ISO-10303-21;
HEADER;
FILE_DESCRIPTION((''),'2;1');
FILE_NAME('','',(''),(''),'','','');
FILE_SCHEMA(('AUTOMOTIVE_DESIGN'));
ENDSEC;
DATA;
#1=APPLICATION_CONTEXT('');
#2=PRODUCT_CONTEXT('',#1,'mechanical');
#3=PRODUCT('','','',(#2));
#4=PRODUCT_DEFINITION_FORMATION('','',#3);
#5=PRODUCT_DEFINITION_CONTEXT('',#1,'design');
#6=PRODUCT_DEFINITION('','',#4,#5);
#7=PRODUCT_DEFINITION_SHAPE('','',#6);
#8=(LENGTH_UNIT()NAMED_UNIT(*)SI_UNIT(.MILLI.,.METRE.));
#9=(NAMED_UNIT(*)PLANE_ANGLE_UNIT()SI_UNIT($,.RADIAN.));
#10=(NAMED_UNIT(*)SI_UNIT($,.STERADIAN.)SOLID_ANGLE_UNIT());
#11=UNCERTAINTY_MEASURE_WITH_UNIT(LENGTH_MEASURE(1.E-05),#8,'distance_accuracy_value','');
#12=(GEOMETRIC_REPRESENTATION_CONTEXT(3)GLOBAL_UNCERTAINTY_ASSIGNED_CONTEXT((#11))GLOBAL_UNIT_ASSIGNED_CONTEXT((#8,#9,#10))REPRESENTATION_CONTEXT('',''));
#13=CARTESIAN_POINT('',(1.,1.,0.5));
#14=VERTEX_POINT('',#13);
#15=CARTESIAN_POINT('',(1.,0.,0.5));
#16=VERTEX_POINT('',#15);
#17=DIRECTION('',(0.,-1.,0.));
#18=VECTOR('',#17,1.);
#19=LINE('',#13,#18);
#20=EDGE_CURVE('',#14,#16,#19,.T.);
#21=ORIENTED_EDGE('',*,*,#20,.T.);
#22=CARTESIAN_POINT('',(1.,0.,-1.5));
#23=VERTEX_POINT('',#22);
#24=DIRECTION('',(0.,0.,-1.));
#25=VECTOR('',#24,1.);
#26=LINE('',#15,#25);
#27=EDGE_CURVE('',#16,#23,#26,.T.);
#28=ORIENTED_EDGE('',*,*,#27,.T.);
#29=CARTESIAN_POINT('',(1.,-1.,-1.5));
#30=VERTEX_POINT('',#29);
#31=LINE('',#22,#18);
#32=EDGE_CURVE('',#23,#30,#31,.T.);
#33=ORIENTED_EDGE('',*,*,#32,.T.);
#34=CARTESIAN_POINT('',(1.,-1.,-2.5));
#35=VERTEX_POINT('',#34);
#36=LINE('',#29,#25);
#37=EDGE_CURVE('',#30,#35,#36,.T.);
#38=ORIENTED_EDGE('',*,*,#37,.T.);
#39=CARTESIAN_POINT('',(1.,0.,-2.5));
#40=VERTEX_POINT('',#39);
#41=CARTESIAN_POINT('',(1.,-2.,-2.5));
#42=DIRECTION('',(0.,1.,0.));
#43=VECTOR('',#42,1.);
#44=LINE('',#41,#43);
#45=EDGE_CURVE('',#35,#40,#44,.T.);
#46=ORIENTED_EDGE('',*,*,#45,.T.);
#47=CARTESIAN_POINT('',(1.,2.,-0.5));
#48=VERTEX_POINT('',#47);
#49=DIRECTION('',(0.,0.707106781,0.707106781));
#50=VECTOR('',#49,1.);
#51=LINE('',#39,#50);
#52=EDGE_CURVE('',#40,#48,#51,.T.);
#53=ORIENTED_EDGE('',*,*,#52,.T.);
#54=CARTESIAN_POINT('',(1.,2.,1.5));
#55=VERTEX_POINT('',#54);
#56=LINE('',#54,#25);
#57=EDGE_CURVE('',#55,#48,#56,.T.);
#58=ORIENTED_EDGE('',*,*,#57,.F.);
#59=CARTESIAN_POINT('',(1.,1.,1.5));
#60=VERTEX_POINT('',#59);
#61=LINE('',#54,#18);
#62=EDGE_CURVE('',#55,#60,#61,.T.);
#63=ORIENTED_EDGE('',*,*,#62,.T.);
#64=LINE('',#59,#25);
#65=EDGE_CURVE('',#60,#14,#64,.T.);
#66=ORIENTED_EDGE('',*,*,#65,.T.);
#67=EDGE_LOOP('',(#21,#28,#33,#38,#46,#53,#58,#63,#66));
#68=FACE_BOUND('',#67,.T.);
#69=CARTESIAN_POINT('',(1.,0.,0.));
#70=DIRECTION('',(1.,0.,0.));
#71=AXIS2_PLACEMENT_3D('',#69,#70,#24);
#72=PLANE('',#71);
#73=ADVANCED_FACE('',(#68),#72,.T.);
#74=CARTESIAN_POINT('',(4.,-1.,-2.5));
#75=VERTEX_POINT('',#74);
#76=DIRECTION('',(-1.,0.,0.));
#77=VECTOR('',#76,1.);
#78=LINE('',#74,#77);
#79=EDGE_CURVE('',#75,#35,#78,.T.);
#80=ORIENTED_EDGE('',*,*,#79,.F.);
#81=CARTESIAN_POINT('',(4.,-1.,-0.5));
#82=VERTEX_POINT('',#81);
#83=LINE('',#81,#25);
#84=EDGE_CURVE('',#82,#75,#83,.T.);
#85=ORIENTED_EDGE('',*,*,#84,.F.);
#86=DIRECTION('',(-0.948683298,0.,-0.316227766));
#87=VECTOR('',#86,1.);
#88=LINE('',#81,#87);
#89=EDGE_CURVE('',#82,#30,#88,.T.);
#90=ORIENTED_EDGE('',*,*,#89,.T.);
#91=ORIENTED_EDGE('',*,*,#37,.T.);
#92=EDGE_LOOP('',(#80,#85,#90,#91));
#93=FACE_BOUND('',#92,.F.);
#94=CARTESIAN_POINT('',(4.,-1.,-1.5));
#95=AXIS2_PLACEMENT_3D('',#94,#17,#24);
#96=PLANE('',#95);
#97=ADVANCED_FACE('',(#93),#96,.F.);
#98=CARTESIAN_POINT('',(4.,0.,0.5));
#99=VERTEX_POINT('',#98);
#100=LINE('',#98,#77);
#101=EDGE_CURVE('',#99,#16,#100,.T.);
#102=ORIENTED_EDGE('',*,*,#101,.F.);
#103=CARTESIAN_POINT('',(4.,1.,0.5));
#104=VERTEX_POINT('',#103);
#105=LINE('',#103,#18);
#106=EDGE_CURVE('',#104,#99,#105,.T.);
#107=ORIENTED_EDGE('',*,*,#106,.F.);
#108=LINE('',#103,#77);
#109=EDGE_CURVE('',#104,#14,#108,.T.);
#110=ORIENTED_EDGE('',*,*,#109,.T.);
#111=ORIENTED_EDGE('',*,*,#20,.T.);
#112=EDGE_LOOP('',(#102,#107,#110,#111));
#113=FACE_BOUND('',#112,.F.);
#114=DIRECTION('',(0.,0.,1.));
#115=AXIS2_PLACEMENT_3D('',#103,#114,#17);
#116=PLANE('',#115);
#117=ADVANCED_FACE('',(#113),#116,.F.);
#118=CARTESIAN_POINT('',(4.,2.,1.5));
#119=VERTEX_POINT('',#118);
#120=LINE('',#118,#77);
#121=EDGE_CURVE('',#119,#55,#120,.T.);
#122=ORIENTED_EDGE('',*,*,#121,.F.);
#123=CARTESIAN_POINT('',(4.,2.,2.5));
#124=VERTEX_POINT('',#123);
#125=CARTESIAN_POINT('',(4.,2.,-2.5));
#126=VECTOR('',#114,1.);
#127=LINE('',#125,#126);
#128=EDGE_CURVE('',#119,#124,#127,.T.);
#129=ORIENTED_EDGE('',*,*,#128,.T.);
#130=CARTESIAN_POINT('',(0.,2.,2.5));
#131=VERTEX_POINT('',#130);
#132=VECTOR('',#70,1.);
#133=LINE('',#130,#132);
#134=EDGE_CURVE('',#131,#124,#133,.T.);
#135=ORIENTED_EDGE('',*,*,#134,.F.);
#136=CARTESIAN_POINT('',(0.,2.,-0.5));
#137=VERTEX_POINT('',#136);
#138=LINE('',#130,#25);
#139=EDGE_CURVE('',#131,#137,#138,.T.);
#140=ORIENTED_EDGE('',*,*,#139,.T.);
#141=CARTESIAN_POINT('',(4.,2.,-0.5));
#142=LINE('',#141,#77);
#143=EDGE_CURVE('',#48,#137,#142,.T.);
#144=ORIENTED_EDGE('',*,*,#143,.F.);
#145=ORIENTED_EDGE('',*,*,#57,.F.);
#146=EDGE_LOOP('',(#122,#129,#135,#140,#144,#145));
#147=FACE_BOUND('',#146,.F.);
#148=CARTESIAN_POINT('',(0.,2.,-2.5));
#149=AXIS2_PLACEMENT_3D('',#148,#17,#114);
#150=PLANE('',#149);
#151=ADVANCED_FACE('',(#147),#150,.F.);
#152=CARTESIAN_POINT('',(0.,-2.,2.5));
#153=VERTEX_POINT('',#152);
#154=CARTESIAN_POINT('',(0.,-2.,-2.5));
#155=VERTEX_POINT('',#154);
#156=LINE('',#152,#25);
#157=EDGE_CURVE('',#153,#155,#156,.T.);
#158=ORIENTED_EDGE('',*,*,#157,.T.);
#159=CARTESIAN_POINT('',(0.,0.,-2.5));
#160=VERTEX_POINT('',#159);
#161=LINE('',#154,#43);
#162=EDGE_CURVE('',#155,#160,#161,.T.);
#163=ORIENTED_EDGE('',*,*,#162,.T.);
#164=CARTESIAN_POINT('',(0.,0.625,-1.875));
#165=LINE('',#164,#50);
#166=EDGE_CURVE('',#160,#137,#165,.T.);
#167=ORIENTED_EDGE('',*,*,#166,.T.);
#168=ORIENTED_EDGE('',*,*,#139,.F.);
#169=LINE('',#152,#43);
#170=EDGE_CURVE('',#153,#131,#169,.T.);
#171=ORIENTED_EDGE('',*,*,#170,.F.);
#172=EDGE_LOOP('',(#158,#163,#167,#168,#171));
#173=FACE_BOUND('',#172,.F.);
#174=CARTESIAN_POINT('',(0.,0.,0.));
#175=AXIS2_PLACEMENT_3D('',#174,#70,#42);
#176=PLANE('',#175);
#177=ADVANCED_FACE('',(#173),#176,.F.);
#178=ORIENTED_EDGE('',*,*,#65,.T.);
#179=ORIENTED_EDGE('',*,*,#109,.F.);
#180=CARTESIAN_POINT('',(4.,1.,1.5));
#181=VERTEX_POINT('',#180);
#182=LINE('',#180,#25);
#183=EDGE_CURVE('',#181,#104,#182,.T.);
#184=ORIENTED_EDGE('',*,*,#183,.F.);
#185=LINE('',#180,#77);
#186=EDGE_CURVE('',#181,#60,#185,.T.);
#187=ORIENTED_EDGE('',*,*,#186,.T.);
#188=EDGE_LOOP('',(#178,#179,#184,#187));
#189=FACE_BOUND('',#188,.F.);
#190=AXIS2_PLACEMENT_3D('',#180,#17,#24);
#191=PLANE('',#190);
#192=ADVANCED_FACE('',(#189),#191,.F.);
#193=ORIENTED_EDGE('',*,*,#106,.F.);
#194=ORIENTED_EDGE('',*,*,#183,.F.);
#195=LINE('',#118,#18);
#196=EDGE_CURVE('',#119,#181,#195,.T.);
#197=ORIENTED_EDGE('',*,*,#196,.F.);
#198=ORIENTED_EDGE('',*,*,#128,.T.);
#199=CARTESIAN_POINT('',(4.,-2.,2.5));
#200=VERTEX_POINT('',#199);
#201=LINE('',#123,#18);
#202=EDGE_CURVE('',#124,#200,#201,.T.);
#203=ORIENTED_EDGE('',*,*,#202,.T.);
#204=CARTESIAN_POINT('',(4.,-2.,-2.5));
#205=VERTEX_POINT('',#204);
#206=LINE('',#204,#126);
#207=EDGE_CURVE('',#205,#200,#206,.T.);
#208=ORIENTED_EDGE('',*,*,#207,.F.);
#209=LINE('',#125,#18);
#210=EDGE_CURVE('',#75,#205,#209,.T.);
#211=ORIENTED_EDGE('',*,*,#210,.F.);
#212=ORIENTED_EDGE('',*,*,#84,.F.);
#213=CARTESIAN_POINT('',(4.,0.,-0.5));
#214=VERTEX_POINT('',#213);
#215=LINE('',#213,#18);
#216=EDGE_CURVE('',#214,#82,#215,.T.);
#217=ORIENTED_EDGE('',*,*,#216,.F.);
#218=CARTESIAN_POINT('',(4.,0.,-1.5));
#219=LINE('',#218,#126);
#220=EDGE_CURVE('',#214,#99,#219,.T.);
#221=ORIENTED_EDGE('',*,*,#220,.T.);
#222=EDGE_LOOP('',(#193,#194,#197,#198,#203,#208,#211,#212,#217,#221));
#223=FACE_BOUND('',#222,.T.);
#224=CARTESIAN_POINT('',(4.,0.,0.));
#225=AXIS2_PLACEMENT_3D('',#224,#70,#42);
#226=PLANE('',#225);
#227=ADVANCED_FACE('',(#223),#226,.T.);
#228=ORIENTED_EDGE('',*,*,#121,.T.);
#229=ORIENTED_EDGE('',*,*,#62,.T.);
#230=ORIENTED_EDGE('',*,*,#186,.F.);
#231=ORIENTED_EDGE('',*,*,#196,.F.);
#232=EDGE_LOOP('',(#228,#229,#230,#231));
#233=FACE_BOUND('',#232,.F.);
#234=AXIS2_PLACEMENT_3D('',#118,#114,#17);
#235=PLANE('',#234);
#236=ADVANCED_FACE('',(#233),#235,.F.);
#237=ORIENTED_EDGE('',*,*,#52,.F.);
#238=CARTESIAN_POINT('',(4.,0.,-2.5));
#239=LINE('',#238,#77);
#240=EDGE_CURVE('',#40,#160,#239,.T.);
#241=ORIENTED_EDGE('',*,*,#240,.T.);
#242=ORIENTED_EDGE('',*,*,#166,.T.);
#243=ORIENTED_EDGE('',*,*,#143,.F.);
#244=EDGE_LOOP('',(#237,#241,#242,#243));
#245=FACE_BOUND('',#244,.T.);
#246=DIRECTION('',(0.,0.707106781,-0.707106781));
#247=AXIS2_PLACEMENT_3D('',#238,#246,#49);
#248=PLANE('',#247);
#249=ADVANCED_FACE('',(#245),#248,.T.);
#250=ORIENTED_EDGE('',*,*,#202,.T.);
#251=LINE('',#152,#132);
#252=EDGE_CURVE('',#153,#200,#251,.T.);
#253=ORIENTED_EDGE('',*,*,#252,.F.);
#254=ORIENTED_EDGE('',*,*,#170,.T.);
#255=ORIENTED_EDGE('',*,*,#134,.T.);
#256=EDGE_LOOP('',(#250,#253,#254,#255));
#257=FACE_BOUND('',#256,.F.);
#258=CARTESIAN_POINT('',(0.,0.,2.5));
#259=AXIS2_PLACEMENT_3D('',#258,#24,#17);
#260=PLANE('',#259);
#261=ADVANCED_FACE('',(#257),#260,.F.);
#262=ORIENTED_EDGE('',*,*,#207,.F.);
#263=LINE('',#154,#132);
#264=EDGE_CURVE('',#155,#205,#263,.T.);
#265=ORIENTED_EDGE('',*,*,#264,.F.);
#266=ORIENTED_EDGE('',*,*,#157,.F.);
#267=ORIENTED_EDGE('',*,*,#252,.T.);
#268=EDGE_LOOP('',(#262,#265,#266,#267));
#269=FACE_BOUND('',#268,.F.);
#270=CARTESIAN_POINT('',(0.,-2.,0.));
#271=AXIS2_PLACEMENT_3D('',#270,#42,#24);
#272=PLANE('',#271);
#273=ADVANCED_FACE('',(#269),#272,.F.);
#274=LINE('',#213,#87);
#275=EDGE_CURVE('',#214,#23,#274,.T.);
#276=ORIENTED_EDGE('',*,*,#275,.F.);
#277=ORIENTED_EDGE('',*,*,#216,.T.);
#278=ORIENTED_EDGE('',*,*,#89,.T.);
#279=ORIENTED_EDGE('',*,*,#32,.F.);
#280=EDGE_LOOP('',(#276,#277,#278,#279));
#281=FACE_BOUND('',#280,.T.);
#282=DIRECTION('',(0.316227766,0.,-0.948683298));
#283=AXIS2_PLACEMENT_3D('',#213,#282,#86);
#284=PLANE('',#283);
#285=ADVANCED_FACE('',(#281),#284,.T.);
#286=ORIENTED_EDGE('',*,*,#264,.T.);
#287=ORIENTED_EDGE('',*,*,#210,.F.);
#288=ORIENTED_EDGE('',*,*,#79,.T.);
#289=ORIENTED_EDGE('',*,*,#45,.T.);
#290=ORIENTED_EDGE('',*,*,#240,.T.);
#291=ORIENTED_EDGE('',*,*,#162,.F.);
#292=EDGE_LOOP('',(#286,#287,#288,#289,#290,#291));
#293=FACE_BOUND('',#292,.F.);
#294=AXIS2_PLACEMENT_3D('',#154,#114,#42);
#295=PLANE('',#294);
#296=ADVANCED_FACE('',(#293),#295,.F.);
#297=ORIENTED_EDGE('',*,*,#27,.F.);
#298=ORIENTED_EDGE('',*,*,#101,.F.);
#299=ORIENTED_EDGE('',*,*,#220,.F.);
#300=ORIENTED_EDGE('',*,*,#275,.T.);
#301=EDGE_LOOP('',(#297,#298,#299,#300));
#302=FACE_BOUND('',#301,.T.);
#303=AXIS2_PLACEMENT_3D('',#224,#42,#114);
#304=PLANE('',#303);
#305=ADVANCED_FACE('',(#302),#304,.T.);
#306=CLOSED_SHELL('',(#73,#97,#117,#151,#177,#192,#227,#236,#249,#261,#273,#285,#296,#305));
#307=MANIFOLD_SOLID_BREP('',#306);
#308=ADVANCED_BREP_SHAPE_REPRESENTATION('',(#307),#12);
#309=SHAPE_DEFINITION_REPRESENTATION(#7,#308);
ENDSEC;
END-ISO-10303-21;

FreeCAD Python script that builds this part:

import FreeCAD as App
import Part
import Sketcher

V = App.Vector


def add_polygon(sketch, points):
    """Adds a closed chain of lines whose ends are joined by coincident constraints."""
    first, n = sketch.GeometryCount, len(points)
    for a, b in zip(points, points[1:] + points[:1]):
        sketch.addGeometry(Part.LineSegment(App.Vector(*a, 0), App.Vector(*b, 0)), False)
    for i in range(n):
        sketch.addConstraint(Sketcher.Constraint("Coincident", first + i, 2, first + (i + 1) % n, 1))

doc = App.newDocument("Part")
body = doc.addObject("PartDesign::Body", "Body")

# Sketch on YZ plane
sketch1 = doc.addObject("Sketcher::SketchObject", "Sketch")
body.addObject(sketch1)
sketch1.AttachmentSupport = (doc.YZ_Plane, [""])
sketch1.MapMode = "FlatFace"
add_polygon(sketch1, [(-2, -2.5), (2, -2.5), (2, 2.5), (-2, 2.5)])  # lines 0-3
sketch1.addConstraint([
    Sketcher.Constraint("Horizontal", 0),
    Sketcher.Constraint("Vertical", 1),
    Sketcher.Constraint("Horizontal", 2),
    Sketcher.Constraint("Vertical", 3),
    Sketcher.Constraint("Symmetric", 0, 2, 2, 2, -1, 1),
    Sketcher.Constraint("DistanceX", 0, 1, 0, 2, 4.0),
    Sketcher.Constraint("DistanceY", 1, 1, 1, 2, 5.0),
])
pad1 = doc.addObject("PartDesign::Pad", "Pad")
body.addObject(pad1)
pad1.Profile = sketch1
pad1.Length = 4

# Sketch on YZ plane
sketch2 = doc.addObject("Sketcher::SketchObject", "Sketch001")
body.addObject(sketch2)
sketch2.AttachmentSupport = (doc.YZ_Plane, [""])
sketch2.MapMode = "FlatFace"
sketch2.AttachmentOffset = App.Placement(V(0, 0, 4), App.Rotation())
add_polygon(sketch2, [(2, -2.5), (2, -0.5), (0, -2.5)])  # lines 0-2
sketch2.addConstraint([
    Sketcher.Constraint("Vertical", 0),
    Sketcher.Constraint("Horizontal", 2),
    Sketcher.Constraint("PointOnObject", 1, 2, -2),
    Sketcher.Constraint("Equal", 2, 0),
    Sketcher.Constraint("DistanceX", 2, 1, 2, 2, 2.0),
    Sketcher.Constraint("DistanceY", 0, 2, -1, 1, 0.5),
])
pocket1 = doc.addObject("PartDesign::Pocket", "Pocket")
body.addObject(pocket1)
pocket1.Profile = sketch2
pocket1.Length = 1000

# Sketch on YZ plane
sketch3 = doc.addObject("Sketcher::SketchObject", "Sketch002")
body.addObject(sketch3)
sketch3.AttachmentSupport = (doc.YZ_Plane, [""])
sketch3.MapMode = "FlatFace"
sketch3.AttachmentOffset = App.Placement(V(0, 0, 4), App.Rotation())
add_polygon(sketch3, [(0, 0.5), (0, -1.5), (-1, -1.5), (-1, -2.5), (0, -2.5), (2, -0.5), (2, 1.5), (1, 1.5), (1, 0.5)])  # lines 0-8
sketch3.addConstraint([
    Sketcher.Constraint("Vertical", 0),
    Sketcher.Constraint("Horizontal", 1),
    Sketcher.Constraint("Vertical", 2),
    Sketcher.Constraint("Horizontal", 3),
    Sketcher.Constraint("Vertical", 5),
    Sketcher.Constraint("Horizontal", 6),
    Sketcher.Constraint("Vertical", 7),
    Sketcher.Constraint("Horizontal", 8),
    Sketcher.Constraint("Symmetric", 1, 2, 6, 2, -1, 1),
    Sketcher.Constraint("PointOnObject", 0, 2, -2),
    Sketcher.Constraint("PointOnObject", 3, 2, -2),
    Sketcher.Constraint("Equal", 3, 6),
    Sketcher.Constraint("Equal", 8, 2),
    Sketcher.Constraint("Equal", 0, 5),
    Sketcher.Constraint("Equal", 2, 7),
    Sketcher.Constraint("DistanceX", 1, 2, 1, 1, 1.0),
    Sketcher.Constraint("DistanceY", 0, 2, 0, 1, 2.0),
])
pocket2 = doc.addObject("PartDesign::Pocket", "Pocket001")
body.addObject(pocket2)
pocket2.Profile = sketch3
pocket2.Length = 3

# Sketch on XZ plane
sketch4 = doc.addObject("Sketcher::SketchObject", "Sketch003")
body.addObject(sketch4)
sketch4.AttachmentSupport = (doc.XZ_Plane, [""])
sketch4.MapMode = "FlatFace"
add_polygon(sketch4, [(4, -0.5), (4, -1.5), (1, -1.5)])  # lines 0-2
sketch4.addConstraint([
    Sketcher.Constraint("Vertical", 0),
    Sketcher.Constraint("Horizontal", 1),
    Sketcher.Constraint("DistanceY", 0, 2, 0, 1, 1.0),
    Sketcher.Constraint("DistanceX", -1, 1, 1, 2, 1.0),
    Sketcher.Constraint("DistanceX", 1, 2, 1, 1, 3.0),
    Sketcher.Constraint("DistanceY", 0, 2, -1, 1, 1.5),
])
pocket3 = doc.addObject("PartDesign::Pocket", "Pocket002")
body.addObject(pocket3)
pocket3.Profile = sketch4
pocket3.Length = 1
pocket3.Reversed = True

doc.recompute()
